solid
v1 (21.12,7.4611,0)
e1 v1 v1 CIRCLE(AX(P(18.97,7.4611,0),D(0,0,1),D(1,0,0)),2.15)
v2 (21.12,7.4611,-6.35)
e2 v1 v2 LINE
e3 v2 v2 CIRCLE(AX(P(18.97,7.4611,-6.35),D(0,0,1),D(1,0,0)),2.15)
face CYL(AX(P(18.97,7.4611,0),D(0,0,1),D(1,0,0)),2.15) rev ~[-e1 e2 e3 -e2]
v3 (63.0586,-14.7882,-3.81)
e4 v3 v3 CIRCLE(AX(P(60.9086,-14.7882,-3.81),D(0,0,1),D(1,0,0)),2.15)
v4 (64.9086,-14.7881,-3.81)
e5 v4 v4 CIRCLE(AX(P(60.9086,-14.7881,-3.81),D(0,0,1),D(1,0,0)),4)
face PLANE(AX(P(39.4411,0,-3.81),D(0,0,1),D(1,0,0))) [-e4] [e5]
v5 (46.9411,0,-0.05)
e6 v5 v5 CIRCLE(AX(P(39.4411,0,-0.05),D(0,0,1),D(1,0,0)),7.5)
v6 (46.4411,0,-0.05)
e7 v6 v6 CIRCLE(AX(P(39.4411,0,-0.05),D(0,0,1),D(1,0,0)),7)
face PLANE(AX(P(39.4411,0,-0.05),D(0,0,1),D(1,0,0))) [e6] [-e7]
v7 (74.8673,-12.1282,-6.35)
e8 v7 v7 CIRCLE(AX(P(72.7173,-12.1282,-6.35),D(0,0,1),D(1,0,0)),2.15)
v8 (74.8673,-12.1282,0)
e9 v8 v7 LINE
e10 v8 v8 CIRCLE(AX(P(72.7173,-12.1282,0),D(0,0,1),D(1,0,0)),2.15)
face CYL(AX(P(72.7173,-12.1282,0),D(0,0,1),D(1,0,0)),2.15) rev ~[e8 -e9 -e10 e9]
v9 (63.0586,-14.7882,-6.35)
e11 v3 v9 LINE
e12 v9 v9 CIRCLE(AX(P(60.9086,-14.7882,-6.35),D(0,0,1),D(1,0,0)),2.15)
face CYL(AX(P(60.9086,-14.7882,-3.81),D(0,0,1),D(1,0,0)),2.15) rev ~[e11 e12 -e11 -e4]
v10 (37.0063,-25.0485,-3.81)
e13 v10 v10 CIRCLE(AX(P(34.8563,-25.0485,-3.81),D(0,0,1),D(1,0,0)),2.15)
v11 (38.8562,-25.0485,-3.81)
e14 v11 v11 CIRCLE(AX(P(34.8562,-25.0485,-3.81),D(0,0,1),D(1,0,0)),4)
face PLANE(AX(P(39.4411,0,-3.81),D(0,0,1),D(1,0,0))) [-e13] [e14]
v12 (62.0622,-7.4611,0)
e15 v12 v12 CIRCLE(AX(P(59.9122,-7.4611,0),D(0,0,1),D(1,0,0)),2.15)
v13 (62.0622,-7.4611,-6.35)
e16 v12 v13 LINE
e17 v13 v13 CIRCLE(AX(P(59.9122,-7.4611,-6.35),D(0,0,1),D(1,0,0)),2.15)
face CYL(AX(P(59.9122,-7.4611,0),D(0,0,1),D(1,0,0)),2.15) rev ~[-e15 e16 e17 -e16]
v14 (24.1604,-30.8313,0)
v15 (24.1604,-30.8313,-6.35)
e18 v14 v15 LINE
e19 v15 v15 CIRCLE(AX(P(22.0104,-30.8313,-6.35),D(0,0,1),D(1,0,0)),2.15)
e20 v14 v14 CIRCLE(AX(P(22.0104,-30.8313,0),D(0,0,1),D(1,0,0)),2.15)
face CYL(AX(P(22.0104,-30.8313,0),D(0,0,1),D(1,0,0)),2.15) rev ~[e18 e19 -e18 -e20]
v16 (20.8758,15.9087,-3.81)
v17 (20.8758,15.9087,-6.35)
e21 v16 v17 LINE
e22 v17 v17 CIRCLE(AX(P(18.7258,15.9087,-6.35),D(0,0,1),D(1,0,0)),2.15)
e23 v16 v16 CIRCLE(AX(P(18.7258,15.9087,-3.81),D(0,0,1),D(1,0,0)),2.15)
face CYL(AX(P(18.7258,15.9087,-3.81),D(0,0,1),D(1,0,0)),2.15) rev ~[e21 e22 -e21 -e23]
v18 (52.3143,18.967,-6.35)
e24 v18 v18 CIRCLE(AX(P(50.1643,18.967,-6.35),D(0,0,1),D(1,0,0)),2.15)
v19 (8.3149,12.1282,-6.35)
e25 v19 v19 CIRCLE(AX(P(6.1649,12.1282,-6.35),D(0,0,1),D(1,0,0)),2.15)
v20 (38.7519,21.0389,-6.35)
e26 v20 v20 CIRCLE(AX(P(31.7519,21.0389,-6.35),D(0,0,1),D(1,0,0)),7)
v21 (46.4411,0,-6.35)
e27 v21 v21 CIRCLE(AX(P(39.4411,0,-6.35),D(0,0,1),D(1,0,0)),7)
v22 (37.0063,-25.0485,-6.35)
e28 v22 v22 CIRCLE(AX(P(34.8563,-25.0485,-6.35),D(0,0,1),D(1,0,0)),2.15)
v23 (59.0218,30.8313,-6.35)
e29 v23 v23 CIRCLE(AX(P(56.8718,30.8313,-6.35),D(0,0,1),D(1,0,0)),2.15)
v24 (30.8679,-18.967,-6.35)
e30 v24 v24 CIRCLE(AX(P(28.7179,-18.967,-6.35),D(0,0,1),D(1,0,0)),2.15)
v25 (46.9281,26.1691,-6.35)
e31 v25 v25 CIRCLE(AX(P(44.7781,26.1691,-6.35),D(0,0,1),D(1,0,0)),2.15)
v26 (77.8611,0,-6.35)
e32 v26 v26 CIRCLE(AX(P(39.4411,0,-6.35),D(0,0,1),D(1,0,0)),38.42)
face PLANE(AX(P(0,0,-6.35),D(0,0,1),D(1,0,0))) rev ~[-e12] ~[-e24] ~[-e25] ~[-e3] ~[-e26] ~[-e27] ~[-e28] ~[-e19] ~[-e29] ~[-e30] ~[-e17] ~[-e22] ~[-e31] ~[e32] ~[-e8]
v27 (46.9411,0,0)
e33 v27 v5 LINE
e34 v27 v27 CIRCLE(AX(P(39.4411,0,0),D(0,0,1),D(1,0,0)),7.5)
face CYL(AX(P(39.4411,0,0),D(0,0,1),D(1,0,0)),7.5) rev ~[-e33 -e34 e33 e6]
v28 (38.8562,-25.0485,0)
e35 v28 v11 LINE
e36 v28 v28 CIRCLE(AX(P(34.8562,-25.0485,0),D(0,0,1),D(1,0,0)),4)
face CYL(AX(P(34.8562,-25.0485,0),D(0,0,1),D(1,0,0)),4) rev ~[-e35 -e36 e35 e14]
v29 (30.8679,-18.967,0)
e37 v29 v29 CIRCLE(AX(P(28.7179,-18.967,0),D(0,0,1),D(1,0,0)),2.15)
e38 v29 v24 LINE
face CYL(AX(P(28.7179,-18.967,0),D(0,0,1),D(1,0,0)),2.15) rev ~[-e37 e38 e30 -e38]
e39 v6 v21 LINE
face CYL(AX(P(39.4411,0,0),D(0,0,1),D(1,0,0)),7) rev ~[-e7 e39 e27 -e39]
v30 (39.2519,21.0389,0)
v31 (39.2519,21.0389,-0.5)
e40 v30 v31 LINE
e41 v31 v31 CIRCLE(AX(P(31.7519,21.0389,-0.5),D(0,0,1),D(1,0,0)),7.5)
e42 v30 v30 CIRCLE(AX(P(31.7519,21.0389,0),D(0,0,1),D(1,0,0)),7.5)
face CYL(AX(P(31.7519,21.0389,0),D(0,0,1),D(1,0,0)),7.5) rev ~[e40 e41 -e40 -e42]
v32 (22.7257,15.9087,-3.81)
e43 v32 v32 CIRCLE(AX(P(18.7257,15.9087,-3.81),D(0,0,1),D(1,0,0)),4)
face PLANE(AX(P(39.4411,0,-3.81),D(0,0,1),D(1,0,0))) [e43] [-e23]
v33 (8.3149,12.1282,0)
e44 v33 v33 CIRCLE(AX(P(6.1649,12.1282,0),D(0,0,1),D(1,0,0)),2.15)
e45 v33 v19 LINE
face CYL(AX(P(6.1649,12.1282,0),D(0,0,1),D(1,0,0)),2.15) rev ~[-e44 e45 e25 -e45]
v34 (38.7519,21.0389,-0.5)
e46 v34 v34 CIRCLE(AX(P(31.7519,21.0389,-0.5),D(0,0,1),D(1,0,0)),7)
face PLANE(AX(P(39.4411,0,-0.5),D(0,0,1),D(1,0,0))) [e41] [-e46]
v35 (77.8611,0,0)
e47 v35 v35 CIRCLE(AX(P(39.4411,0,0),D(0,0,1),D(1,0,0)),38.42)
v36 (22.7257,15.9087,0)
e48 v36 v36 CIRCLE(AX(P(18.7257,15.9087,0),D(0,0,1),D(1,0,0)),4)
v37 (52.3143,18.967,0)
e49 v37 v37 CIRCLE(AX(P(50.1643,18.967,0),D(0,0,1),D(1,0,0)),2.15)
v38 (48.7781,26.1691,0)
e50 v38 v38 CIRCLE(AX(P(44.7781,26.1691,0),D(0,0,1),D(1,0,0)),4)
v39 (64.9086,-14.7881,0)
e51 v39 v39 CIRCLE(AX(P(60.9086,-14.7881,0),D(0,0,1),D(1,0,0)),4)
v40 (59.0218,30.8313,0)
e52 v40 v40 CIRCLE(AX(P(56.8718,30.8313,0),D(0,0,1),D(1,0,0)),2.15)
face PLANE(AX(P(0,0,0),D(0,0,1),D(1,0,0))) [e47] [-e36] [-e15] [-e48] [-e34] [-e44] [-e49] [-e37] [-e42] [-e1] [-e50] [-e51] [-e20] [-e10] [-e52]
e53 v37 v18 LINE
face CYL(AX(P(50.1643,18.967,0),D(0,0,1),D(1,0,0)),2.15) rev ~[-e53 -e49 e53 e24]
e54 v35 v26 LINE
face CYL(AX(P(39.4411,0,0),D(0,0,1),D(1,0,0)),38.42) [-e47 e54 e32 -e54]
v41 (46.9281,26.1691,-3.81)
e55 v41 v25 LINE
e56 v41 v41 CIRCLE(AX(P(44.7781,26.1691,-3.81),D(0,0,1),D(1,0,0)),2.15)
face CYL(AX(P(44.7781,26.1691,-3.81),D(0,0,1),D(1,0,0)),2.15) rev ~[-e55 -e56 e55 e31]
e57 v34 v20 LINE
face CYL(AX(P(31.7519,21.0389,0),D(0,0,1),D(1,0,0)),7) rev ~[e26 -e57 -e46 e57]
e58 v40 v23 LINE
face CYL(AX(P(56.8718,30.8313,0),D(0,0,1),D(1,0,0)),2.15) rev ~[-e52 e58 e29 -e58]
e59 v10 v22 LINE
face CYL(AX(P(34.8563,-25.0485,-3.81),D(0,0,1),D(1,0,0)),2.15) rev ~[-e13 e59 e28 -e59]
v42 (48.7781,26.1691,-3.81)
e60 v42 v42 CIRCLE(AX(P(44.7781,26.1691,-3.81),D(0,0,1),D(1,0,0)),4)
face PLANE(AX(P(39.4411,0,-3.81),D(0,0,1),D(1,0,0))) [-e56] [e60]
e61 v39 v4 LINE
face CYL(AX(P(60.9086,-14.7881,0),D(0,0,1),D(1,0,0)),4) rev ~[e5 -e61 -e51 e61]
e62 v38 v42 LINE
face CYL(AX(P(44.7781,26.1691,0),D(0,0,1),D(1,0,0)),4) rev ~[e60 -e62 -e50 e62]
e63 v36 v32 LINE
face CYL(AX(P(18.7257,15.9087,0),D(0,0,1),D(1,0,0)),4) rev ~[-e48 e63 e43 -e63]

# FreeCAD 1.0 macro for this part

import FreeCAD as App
import Part
import Sketcher
from FreeCAD import Vector

doc = App.newDocument("Part")
body = doc.addObject("PartDesign::Body", "Body")

sketch1 = doc.addObject("Sketcher::SketchObject", "Sketch")
body.addObject(sketch1)
sketch1.AttachmentSupport = (doc.XY_Plane, [""])
sketch1.MapMode = "FlatFace"
sketch1.addGeometry([
    Part.Circle(Vector(39.4, 0, 0), Vector(0, 0, 1), 38.4),
    Part.Circle(Vector(28.7, -19, 0), Vector(0, 0, 1), 2.1),
    Part.Circle(Vector(59.9, -7.5, 0), Vector(0, 0, 1), 2.1),
    Part.Circle(Vector(19, 7.5, 0), Vector(0, 0, 1), 2.1),
    Part.Circle(Vector(31.8, 21, 0), Vector(0, 0, 1), 7),
    Part.Circle(Vector(39.4, 0, 0), Vector(0, 0, 1), 7),
    Part.Circle(Vector(50.2, 19, 0), Vector(0, 0, 1), 2.1),
], False)
sketch1.addConstraint([
    Sketcher.Constraint("Coincident", 5, 3, 0, 3),
    Sketcher.Constraint("Equal", 1, 2),
    Sketcher.Constraint("Equal", 2, 3),
    Sketcher.Constraint("Equal", 4, 5),
    Sketcher.Constraint("Equal", 3, 6),
    Sketcher.Constraint("PointOnObject", 0, 3, -1),
    Sketcher.Constraint("Diameter", 4, 14.0),
    Sketcher.Constraint("Diameter", 1, 4.3),
    Sketcher.Constraint("Diameter", 0, 76.84),
    Sketcher.Constraint("DistanceY", 2, 3, 4, 3, 28.5),
    Sketcher.Constraint("DistanceX", -1, 1, 3, 3, 18.97),
    Sketcher.Constraint("DistanceX", -1, 1, 0, 3, 39.441),
    Sketcher.Constraint("DistanceX", -1, 1, 1, 3, 28.718),
    Sketcher.Constraint("DistanceY", 1, 3, -1, 1, 18.967),
    Sketcher.Constraint("DistanceY", 2, 3, -1, 1, 7.461),
    Sketcher.Constraint("DistanceY", -1, 1, 3, 3, 7.461),
    Sketcher.Constraint("DistanceX", -1, 1, 4, 3, 31.752),
    Sketcher.Constraint("DistanceY", -1, 1, 6, 3, 18.967),
    Sketcher.Constraint("DistanceX", 0, 3, 2, 3, 20.471),
    Sketcher.Constraint("DistanceX", 6, 3, 2, 3, 9.748),
])
pad1 = doc.addObject("PartDesign::Pad", "Pad")
body.addObject(pad1)
pad1.Profile = sketch1
pad1.Length = 6.35
pad1.Reversed = True

sketch2 = doc.addObject("Sketcher::SketchObject", "Sketch001")
body.addObject(sketch2)
sketch2.AttachmentSupport = (doc.XY_Plane, [""])
sketch2.MapMode = "FlatFace"
sketch2.addGeometry(Part.Circle(Vector(32, 21, 0), Vector(0, 0, 1), 8), False)
sketch2.addConstraint([
    Sketcher.Constraint("Diameter", 0, 15.0),
    Sketcher.Constraint("DistanceX", -1, 1, 0, 3, 31.752),
    Sketcher.Constraint("DistanceY", -1, 1, 0, 3, 21.039),
])
pocket1 = doc.addObject("PartDesign::Pocket", "Pocket")
body.addObject(pocket1)
pocket1.Profile = sketch2
pocket1.Length = 0.5

sketch3 = doc.addObject("Sketcher::SketchObject", "Sketch002")
body.addObject(sketch3)
sketch3.AttachmentSupport = (doc.XY_Plane, [""])
sketch3.MapMode = "FlatFace"
sketch3.addGeometry(Part.Circle(Vector(39, 0, 0), Vector(0, 0, 1), 8), False)
sketch3.addConstraint([
    Sketcher.Constraint("PointOnObject", 0, 3, -1),
    Sketcher.Constraint("Diameter", 0, 15.0),
    Sketcher.Constraint("DistanceX", -1, 1, 0, 3, 39.441),
])
pocket2 = doc.addObject("PartDesign::Pocket", "Pocket001")
body.addObject(pocket2)
pocket2.Profile = sketch3
pocket2.Length = 0.05

sketch4 = doc.addObject("Sketcher::SketchObject", "Sketch003")
body.addObject(sketch4)
sketch4.AttachmentSupport = (doc.XY_Plane, [""])
sketch4.MapMode = "FlatFace"
sketch4.addGeometry([
    Part.Circle(Vector(56.9, 30.8, 0), Vector(0, 0, 1), 2.1),
    Part.Circle(Vector(22, -30.8, 0), Vector(0, 0, 1), 2.1),
    Part.Circle(Vector(72.7, -12.1, 0), Vector(0, 0, 1), 2.1),
    Part.Circle(Vector(6.2, 12.1, 0), Vector(0, 0, 1), 2.1),
], False)
sketch4.addConstraint([
    Sketcher.Constraint("Equal", 0, 1),
    Sketcher.Constraint("Equal", 1, 2),
    Sketcher.Constraint("Equal", 2, 3),
    Sketcher.Constraint("Diameter", 0, 4.3),
    Sketcher.Constraint("DistanceX", -1, 1, 3, 3, 6.165),
    Sketcher.Constraint("DistanceX", 1, 3, 2, 3, 50.707),
    Sketcher.Constraint("DistanceY", 1, 3, 2, 3, 18.703),
    Sketcher.Constraint("DistanceX", 3, 3, 0, 3, 50.707),
    Sketcher.Constraint("DistanceY", 3, 3, 0, 3, 18.703),
    Sketcher.Constraint("DistanceY", -1, 1, 0, 3, 30.8313),
    Sketcher.Constraint("DistanceX", -1, 1, 1, 3, 22.0104),
    Sketcher.Constraint("DistanceY", 1, 3, -1, 1, 30.8313),
])
pocket3 = doc.addObject("PartDesign::Pocket", "Pocket002")
body.addObject(pocket3)
pocket3.Profile = sketch4
pocket3.Length = 6.35

sketch5 = doc.addObject("Sketcher::SketchObject", "Sketch004")
body.addObject(sketch5)
sketch5.AttachmentSupport = (doc.XY_Plane, [""])
sketch5.MapMode = "FlatFace"
sketch5.addGeometry([
    Part.Circle(Vector(44.8, 26.2, 0), Vector(0, 0, 1), 4),
    Part.Circle(Vector(18.7, 15.9, 0), Vector(0, 0, 1), 4),
    Part.Circle(Vector(60.9, -14.8, 0), Vector(0, 0, 1), 4),
    Part.Circle(Vector(34.9, -25, 0), Vector(0, 0, 1), 4),
], False)
sketch5.addConstraint([
    Sketcher.Constraint("Equal", 0, 1),
    Sketcher.Constraint("Equal", 1, 2),
    Sketcher.Constraint("Equal", 2, 3),
    Sketcher.Constraint("Diameter", 0, 8.0),
    Sketcher.Constraint("DistanceX", -1, 1, 0, 3, 44.778),
    Sketcher.Constraint("DistanceY", -1, 1, 0, 3, 26.169),
    Sketcher.Constraint("DistanceY", 2, 3, -1, 1, 14.788),
    Sketcher.Constraint("DistanceX", 1, 3, 2, 3, 42.183),
    Sketcher.Constraint("DistanceX", 3, 3, 0, 3, 9.922),
    Sketcher.Constraint("DistanceX", -1, 1, 1, 3, 18.7257),
    Sketcher.Constraint("DistanceY", -1, 1, 1, 3, 15.9087),
    Sketcher.Constraint("DistanceY", 3, 3, -1, 1, 25.0485),
])
pocket4 = doc.addObject("PartDesign::Pocket", "Pocket003")
body.addObject(pocket4)
pocket4.Profile = sketch5
pocket4.Length = 3.81

sketch6 = doc.addObject("Sketcher::SketchObject", "Sketch005")
body.addObject(sketch6)
sketch6.AttachmentSupport = (doc.XY_Plane, [""])
sketch6.MapMode = "FlatFace"
sketch6.AttachmentOffset = App.Placement(Vector(0, 0, -3.81), App.Rotation())
sketch6.addGeometry([
    Part.Circle(Vector(44.8, 26.2, 0), Vector(0, 0, 1), 2.1),
    Part.Circle(Vector(18.7, 15.9, 0), Vector(0, 0, 1), 2.1),
    Part.Circle(Vector(34.9, -25, 0), Vector(0, 0, 1), 2.1),
    Part.Circle(Vector(60.9, -14.8, 0), Vector(0, 0, 1), 2.1),
], False)
sketch6.addConstraint([
    Sketcher.Constraint("Equal", 0, 1),
    Sketcher.Constraint("Equal", 1, 2),
    Sketcher.Constraint("Equal", 2, 3),
    Sketcher.Constraint("Diameter", 0, 4.3),
    Sketcher.Constraint("DistanceX", -1, 1, 0, 3, 44.778),
    Sketcher.Constraint("DistanceY", -1, 1, 0, 3, 26.169),
    Sketcher.Constraint("DistanceY", 3, 3, 1, 3, 30.697),
    Sketcher.Constraint("DistanceX", -1, 1, 1, 3, 18.7258),
    Sketcher.Constraint("DistanceY", -1, 1, 1, 3, 15.9087),
    Sketcher.Constraint("DistanceX", -1, 1, 2, 3, 34.8563),
    Sketcher.Constraint("DistanceY", 2, 3, -1, 1, 25.0485),
    Sketcher.Constraint("DistanceX", -1, 1, 3, 3, 60.9086),
])
pocket5 = doc.addObject("PartDesign::Pocket", "Pocket004")
body.addObject(pocket5)
pocket5.Profile = sketch6
pocket5.Type = "ThroughAll"

doc.recompute()
